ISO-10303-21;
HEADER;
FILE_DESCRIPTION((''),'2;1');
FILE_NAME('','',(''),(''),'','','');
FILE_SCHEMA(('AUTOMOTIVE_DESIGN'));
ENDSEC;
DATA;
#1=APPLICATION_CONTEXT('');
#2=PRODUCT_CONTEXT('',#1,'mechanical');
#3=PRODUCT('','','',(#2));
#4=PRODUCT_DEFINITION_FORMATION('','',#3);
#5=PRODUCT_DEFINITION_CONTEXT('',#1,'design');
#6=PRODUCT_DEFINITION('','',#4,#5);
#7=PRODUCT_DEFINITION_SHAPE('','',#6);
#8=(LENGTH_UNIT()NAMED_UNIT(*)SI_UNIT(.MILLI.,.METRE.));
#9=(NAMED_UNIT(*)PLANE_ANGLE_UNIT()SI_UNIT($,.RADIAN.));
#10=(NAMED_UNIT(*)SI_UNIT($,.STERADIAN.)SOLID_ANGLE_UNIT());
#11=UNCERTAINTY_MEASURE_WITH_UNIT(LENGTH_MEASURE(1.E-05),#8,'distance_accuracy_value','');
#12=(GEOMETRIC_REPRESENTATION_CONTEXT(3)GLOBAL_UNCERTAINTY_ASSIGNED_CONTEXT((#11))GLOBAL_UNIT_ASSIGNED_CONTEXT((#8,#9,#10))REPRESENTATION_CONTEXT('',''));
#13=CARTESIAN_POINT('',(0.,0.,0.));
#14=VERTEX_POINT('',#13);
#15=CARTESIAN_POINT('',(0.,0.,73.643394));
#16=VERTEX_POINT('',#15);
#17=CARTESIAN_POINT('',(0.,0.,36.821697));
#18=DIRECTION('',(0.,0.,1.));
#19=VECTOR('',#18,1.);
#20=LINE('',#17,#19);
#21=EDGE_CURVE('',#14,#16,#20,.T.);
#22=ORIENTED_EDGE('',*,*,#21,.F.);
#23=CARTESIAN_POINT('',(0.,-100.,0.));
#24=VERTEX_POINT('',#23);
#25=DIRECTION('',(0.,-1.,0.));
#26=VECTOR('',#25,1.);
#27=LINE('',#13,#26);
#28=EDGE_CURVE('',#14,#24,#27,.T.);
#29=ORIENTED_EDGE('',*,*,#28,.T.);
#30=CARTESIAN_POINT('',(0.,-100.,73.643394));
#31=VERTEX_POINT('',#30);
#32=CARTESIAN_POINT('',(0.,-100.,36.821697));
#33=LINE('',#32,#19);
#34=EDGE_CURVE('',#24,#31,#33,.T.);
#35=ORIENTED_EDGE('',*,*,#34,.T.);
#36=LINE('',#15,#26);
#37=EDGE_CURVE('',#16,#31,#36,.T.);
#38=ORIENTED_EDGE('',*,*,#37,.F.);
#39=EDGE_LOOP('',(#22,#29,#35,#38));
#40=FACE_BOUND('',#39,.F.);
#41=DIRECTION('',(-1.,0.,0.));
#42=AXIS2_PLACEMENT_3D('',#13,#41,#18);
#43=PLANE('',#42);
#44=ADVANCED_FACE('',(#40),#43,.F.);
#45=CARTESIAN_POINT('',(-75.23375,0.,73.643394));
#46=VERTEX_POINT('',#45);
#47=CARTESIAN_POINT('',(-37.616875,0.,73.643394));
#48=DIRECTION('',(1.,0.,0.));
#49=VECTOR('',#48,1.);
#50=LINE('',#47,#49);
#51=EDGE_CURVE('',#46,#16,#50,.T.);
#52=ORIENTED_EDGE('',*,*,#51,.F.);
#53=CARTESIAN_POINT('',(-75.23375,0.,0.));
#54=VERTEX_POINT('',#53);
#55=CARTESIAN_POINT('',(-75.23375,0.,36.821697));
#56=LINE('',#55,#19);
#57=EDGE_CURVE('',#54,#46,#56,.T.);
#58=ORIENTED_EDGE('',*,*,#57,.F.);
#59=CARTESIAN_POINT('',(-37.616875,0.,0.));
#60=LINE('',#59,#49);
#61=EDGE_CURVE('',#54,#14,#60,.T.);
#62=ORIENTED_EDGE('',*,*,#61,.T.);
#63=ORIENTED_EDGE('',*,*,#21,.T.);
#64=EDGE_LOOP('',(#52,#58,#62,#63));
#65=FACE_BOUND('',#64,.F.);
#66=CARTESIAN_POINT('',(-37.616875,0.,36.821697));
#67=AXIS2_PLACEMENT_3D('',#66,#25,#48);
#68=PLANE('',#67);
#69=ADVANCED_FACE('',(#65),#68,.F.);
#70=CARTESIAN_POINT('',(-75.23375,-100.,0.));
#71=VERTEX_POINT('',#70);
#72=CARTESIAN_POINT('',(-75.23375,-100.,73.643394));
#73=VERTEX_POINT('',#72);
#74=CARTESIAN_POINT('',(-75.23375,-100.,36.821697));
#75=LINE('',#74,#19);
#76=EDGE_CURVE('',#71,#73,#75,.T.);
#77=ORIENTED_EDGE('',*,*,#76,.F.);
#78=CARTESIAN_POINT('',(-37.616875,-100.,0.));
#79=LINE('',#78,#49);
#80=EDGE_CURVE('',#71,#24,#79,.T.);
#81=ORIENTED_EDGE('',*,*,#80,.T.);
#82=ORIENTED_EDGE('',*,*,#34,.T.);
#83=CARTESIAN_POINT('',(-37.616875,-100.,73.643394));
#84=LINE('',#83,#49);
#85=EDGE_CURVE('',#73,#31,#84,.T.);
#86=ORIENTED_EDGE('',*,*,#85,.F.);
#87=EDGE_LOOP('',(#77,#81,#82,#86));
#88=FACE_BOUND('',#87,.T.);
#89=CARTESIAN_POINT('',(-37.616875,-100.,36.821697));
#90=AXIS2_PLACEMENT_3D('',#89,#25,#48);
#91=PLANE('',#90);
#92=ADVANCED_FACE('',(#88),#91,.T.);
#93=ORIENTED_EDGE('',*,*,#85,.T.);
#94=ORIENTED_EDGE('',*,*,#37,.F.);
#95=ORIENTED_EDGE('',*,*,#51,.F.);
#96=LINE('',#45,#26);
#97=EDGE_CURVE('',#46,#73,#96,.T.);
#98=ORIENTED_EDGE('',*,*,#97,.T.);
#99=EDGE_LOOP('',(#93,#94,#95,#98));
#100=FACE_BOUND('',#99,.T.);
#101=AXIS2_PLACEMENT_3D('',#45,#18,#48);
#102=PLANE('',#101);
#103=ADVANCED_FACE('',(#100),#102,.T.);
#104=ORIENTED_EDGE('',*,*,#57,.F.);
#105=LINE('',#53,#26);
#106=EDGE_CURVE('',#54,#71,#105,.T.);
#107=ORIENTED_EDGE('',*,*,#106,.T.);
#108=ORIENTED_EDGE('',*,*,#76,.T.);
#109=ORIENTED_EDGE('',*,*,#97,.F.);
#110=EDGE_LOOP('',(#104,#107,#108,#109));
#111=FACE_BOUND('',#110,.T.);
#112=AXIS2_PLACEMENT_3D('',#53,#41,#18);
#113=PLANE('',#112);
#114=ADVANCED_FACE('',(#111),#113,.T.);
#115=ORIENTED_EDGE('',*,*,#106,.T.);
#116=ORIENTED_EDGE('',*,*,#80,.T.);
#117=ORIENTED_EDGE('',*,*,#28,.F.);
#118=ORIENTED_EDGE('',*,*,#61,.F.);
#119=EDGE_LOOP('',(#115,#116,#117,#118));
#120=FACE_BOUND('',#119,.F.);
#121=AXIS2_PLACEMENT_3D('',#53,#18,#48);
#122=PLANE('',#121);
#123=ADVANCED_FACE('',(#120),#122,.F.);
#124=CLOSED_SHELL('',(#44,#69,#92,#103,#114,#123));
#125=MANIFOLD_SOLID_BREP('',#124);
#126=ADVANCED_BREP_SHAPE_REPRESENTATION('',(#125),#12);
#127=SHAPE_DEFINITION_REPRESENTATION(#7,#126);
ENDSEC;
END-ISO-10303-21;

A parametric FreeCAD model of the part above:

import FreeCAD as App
import Part
import Sketcher

V = App.Vector
Q = App.Units.Quantity


def add_polygon(sketch, points):
    """Adds a closed chain of lines whose ends are joined by coincident constraints."""
    first, n = sketch.GeometryCount, len(points)
    for a, b in zip(points, points[1:] + points[:1]):
        sketch.addGeometry(Part.LineSegment(App.Vector(*a, 0), App.Vector(*b, 0)), False)
    for i in range(n):
        sketch.addConstraint(Sketcher.Constraint("Coincident", first + i, 2, first + (i + 1) % n, 1))

doc = App.newDocument("Part")
params = doc.addObject("Spreadsheet::Sheet", "Params")
for row, (alias, value) in enumerate([
    ("pad1_length", "100 mm"),
    ("pad2_length", "75 mm"),
    ("pad3_length", "50 mm"),
], start=1):
    params.set(f"A{row}", alias)
    params.set(f"B{row}", "=" + value)
    params.setAlias(f"B{row}", alias)

body = doc.addObject("PartDesign::Body", "Body")

# Sketch on XZ plane
sketch1 = body.newObject("Sketcher::SketchObject", "Sketch")
sketch1.AttachmentSupport = (doc.getObject("XZ_Plane"), [""])
sketch1.MapMode = "FlatFace"
add_polygon(sketch1, [(-75, 74), (-75, 0), (0, 0), (0, 74)])  # lines 0-3
sketch1.addConstraint([
    Sketcher.Constraint("Vertical", 0),
    Sketcher.Constraint("Horizontal", 1),
    Sketcher.Constraint("Vertical", 2),
    Sketcher.Constraint("Horizontal", 3),
    Sketcher.Constraint("Coincident", 1, 2, -1, 1),
    Sketcher.Constraint("DistanceX", 1, 1, 1, 2, Q("75.23375 mm")),
    Sketcher.Constraint("DistanceY", 0, 2, 0, 1, Q("73.643394 mm")),
])
pad1 = body.newObject("PartDesign::Pad", "Pad")
pad1.Profile = sketch1
pad1.setExpression("Length", "Params.pad1_length")

# Sketch on XZ plane
sketch2 = body.newObject("Sketcher::SketchObject", "Sketch001")
sketch2.AttachmentSupport = (doc.getObject("XZ_Plane"), [""])
sketch2.MapMode = "FlatFace"
sketch2.AttachmentOffset = App.Placement(V(0, 0, 100), App.Rotation())
sketch2.addGeometry([
    Part.Circle(V(-42, 33, 0), V(0, 0, 1), 27),
    Part.Circle(V(-42, 33, 0), V(0, 0, 1), 13),
], False)
sketch2.addConstraint([
    Sketcher.Constraint("Coincident", 1, 3, 0, 3),
    Sketcher.Constraint("Diameter", 0, Q("53.588502 mm")),
    Sketcher.Constraint("Diameter", 1, Q("26.516474 mm")),
    Sketcher.Constraint("DistanceY", -1, 1, 0, 3, Q("33.408221 mm")),
    Sketcher.Constraint("DistanceX", 0, 3, -1, 1, Q("41.986048 mm")),
])
pad2 = body.newObject("PartDesign::Pad", "Pad001")
pad2.Profile = sketch2
pad2.setExpression("Length", "Params.pad2_length")
pad2.Reversed = True

# Sketch on XZ plane
sketch3 = body.newObject("Sketcher::SketchObject", "Sketch002")
sketch3.AttachmentSupport = (doc.getObject("XZ_Plane"), [""])
sketch3.MapMode = "FlatFace"
sketch3.AttachmentOffset = App.Placement(V(0, 0, 100), App.Rotation())
sketch3.addGeometry(Part.Circle(V(-41, 35, 0), V(0, 0, 1), 26), False)
sketch3.addConstraint([
    Sketcher.Constraint("Diameter", 0, Q("52.646386 mm")),
    Sketcher.Constraint("DistanceX", 0, 3, -1, 1, Q("41.341685 mm")),
    Sketcher.Constraint("DistanceY", -1, 1, 0, 3, Q("35.241015 mm")),
])
pad3 = body.newObject("PartDesign::Pad", "Pad002")
pad3.Profile = sketch3
pad3.setExpression("Length", "Params.pad3_length")
pad3.Reversed = True

doc.recompute()
